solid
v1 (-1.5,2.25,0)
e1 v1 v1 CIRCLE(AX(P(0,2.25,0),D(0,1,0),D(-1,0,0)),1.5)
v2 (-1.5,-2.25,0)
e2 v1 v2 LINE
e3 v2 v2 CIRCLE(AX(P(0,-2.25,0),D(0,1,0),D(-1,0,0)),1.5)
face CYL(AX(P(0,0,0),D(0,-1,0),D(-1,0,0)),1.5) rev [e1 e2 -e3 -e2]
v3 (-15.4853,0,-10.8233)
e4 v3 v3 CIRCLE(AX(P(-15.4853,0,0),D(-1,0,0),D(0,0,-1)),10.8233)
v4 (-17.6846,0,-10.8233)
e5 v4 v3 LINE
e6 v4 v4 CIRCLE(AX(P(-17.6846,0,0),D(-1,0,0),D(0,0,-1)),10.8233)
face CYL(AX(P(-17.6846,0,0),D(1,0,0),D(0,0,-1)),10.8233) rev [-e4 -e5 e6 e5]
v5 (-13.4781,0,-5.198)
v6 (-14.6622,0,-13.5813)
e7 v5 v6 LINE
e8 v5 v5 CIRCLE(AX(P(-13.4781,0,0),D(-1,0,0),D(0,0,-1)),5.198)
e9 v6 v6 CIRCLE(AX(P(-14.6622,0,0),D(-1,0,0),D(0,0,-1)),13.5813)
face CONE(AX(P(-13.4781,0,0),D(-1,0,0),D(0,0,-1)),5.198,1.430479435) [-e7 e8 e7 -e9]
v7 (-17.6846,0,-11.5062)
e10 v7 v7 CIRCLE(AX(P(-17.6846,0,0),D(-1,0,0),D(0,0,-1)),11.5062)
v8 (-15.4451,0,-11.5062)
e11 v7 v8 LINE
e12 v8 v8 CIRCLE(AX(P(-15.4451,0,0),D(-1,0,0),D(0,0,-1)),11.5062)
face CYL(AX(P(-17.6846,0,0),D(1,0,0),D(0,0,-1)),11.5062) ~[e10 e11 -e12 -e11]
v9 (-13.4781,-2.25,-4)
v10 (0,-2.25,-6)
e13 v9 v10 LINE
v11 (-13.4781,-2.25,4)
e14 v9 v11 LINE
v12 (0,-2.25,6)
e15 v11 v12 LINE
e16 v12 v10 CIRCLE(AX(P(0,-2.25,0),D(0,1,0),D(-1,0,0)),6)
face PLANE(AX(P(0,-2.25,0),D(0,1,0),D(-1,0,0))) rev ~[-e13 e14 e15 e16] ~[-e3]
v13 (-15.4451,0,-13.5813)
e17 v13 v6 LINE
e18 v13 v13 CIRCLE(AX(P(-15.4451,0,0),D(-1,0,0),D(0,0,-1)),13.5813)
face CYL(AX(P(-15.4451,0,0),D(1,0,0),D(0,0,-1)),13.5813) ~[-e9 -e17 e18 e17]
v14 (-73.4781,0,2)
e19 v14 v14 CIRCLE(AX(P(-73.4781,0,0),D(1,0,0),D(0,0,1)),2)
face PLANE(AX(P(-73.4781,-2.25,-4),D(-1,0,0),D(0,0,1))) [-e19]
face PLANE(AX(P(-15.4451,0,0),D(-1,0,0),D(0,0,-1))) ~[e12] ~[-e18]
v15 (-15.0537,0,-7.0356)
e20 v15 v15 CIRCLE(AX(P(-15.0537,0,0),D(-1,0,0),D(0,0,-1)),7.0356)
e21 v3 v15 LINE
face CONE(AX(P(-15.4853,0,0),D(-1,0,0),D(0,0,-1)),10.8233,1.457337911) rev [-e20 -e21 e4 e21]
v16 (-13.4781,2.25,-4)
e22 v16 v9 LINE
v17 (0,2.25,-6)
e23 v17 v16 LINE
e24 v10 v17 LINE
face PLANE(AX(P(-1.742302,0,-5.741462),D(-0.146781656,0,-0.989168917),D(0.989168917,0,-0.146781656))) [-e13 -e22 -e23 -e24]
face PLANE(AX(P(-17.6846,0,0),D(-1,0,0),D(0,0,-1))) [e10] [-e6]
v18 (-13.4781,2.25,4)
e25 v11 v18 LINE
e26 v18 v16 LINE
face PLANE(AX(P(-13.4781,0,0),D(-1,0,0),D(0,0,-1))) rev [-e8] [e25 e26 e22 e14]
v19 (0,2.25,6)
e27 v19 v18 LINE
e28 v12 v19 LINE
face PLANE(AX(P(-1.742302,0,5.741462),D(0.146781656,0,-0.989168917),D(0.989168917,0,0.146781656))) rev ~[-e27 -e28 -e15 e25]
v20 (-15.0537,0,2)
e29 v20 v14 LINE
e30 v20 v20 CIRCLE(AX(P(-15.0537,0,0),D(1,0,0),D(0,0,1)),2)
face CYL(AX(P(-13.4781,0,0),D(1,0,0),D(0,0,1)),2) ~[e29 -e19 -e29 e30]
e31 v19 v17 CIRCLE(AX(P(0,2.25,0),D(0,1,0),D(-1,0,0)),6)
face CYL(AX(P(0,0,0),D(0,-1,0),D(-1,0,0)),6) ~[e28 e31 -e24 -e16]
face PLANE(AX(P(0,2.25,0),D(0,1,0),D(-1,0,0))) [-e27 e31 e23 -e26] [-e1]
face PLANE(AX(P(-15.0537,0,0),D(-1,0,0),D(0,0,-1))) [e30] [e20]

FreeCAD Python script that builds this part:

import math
import FreeCAD as App
import Part
import Sketcher

V = App.Vector
Q = App.Units.Quantity

doc = App.newDocument("Part")
body = doc.addObject("PartDesign::Body", "Body")

# Sketch on XZ plane
sketch1 = body.newObject("Sketcher::SketchObject", "Sketch")
sketch1.AttachmentSupport = (doc.getObject("XZ_Plane"), [""])
sketch1.MapMode = "FlatFace"
sketch1.addGeometry(Part.ArcOfCircle(Part.Circle(V(0, 0, 0), V(0, 0, 1), 6), math.radians(-90), math.radians(90)), False)
sketch1.addGeometry(Part.LineSegment(V(0, -6, 0), V(-13.5, -4, 0)), False)
sketch1.addGeometry(Part.LineSegment(V(-13.5, -4, 0), V(-13.5, 4, 0)), False)
sketch1.addGeometry(Part.LineSegment(V(-13.5, 4, 0), V(0, 6, 0)), False)
sketch1.addGeometry(Part.Circle(V(0, 0, 0), V(0, 0, 1), 1.5), False)
sketch1.addConstraint(Sketcher.Constraint("Coincident", 0, 1, 1, 1))
sketch1.addConstraint(Sketcher.Constraint("Coincident", 1, 2, 2, 1))
sketch1.addConstraint(Sketcher.Constraint("Coincident", 2, 2, 3, 1))
sketch1.addConstraint(Sketcher.Constraint("Coincident", 3, 2, 0, 2))
sketch1.addConstraint(Sketcher.Constraint("Vertical", 2))
sketch1.addConstraint(Sketcher.Constraint("Coincident", 0, 3, -1, 1))
sketch1.addConstraint(Sketcher.Constraint("Coincident", 4, 3, -1, 1))
sketch1.addConstraint(Sketcher.Constraint("PointOnObject", 0, 1, -2))
sketch1.addConstraint(Sketcher.Constraint("PointOnObject", 3, 2, -2))
sketch1.addConstraint(Sketcher.Constraint("Equal", 1, 3))
sketch1.addConstraint(Sketcher.Constraint("Diameter", 4, 3.0))
sketch1.addConstraint(Sketcher.Constraint("Radius", 0, 6.0))
sketch1.addConstraint(Sketcher.Constraint("DistanceY", 1, 2, -1, 1, 4.0))
sketch1.addConstraint(Sketcher.Constraint("Angle", 1, Q("171.5595 deg")))
pad1 = body.newObject("PartDesign::Pad", "Pad")
pad1.Profile = sketch1
pad1.Length = 4.5
pad1.Midplane = True

# Sketch on YZ plane
sketch2 = body.newObject("Sketcher::SketchObject", "Sketch001")
sketch2.AttachmentSupport = (doc.getObject("YZ_Plane"), [""])
sketch2.MapMode = "FlatFace"
sketch2.AttachmentOffset = App.Placement(V(0, 0, -13.4781), App.Rotation())
sketch2.addGeometry(Part.Circle(V(0, 0, 0), V(0, 0, 1), 2), False)
sketch2.addConstraint(Sketcher.Constraint("Coincident", 0, 3, -1, 1))
sketch2.addConstraint(Sketcher.Constraint("Diameter", 0, 4.0))
pad2 = body.newObject("PartDesign::Pad", "Pad001")
pad2.Profile = sketch2
pad2.Length = 60
pad2.Reversed = True

# Sketch on XZ plane
sketch3 = body.newObject("Sketcher::SketchObject", "Sketch002")
sketch3.AttachmentSupport = (doc.getObject("XZ_Plane"), [""])
sketch3.MapMode = "FlatFace"
sketch3.addGeometry(Part.LineSegment(V(-15.1, 0, 0), V(-13.5, 0, 0)), False)
sketch3.addGeometry(Part.LineSegment(V(-13.5, 0, 0), V(-13.5, -5.2, 0)), False)
sketch3.addGeometry(Part.LineSegment(V(-13.5, -5.2, 0), V(-14.7, -13.6, 0)), False)
sketch3.addGeometry(Part.LineSegment(V(-14.7, -13.6, 0), V(-15.4, -13.6, 0)), False)
sketch3.addGeometry(Part.LineSegment(V(-15.4, -13.6, 0), V(-15.4, -11.5, 0)), False)
sketch3.addGeometry(Part.LineSegment(V(-15.4, -11.5, 0), V(-17.7, -11.5, 0)), False)
sketch3.addGeometry(Part.LineSegment(V(-17.7, -11.5, 0), V(-17.7, -10.8, 0)), False)
sketch3.addGeometry(Part.LineSegment(V(-17.7, -10.8, 0), V(-15.5, -10.8, 0)), False)
sketch3.addGeometry(Part.LineSegment(V(-15.5, -10.8, 0), V(-15.1, -7, 0)), False)
sketch3.addGeometry(Part.LineSegment(V(-15.1, -7, 0), V(-15.1, 0, 0)), False)
sketch3.addConstraint(Sketcher.Constraint("Coincident", 0, 2, 1, 1))
sketch3.addConstraint(Sketcher.Constraint("Coincident", 1, 2, 2, 1))
sketch3.addConstraint(Sketcher.Constraint("Coincident", 2, 2, 3, 1))
sketch3.addConstraint(Sketcher.Constraint("Coincident", 3, 2, 4, 1))
sketch3.addConstraint(Sketcher.Constraint("Coincident", 4, 2, 5, 1))
sketch3.addConstraint(Sketcher.Constraint("Coincident", 5, 2, 6, 1))
sketch3.addConstraint(Sketcher.Constraint("Coincident", 6, 2, 7, 1))
sketch3.addConstraint(Sketcher.Constraint("Coincident", 7, 2, 8, 1))
sketch3.addConstraint(Sketcher.Constraint("Coincident", 8, 2, 9, 1))
sketch3.addConstraint(Sketcher.Constraint("Coincident", 9, 2, 0, 1))
sketch3.addConstraint(Sketcher.Constraint("Horizontal", 0))
sketch3.addConstraint(Sketcher.Constraint("Vertical", 1))
sketch3.addConstraint(Sketcher.Constraint("Horizontal", 3))
sketch3.addConstraint(Sketcher.Constraint("Vertical", 4))
sketch3.addConstraint(Sketcher.Constraint("Horizontal", 5))
sketch3.addConstraint(Sketcher.Constraint("Vertical", 6))
sketch3.addConstraint(Sketcher.Constraint("Horizontal", 7))
sketch3.addConstraint(Sketcher.Constraint("Vertical", 9))
sketch3.addConstraint(Sketcher.Constraint("PointOnObject", 0, 2, -1))
sketch3.addConstraint(Sketcher.Constraint("Angle", 8, Q("83.4993 deg")))
sketch3.addConstraint(Sketcher.Constraint("DistanceY", 4, 2, -1, 1, 11.5062))
sketch3.addConstraint(Sketcher.Constraint("Angle", 2, Q("-98.0396 deg")))
sketch3.addConstraint(Sketcher.Constraint("DistanceX", 3, 2, 3, 1, 0.783))
sketch3.addConstraint(Sketcher.Constraint("DistanceY", 1, 2, 1, 1, 5.198))
sketch3.addConstraint(Sketcher.Constraint("DistanceY", 4, 1, 4, 2, 2.075))
sketch3.addConstraint(Sketcher.Constraint("DistanceY", 6, 1, 6, 2, 0.683))
sketch3.addConstraint(Sketcher.Constraint("DistanceX", 0, 1, 0, 2, 1.5756))
sketch3.addConstraint(Sketcher.Constraint("DistanceX", 5, 2, 5, 1, 2.2395))
sketch3.addConstraint(Sketcher.Constraint("DistanceX", 7, 1, 7, 2, 2.1993))
sketch3.addConstraint(Sketcher.Constraint("DistanceX", 0, 2, -1, 1, 13.478))
revolution = body.newObject("PartDesign::Revolution", "Revolution")
revolution.Profile = sketch3
revolution.ReferenceAxis = (sketch3, ["H_Axis"])
revolution.Angle = 360

doc.recompute()
